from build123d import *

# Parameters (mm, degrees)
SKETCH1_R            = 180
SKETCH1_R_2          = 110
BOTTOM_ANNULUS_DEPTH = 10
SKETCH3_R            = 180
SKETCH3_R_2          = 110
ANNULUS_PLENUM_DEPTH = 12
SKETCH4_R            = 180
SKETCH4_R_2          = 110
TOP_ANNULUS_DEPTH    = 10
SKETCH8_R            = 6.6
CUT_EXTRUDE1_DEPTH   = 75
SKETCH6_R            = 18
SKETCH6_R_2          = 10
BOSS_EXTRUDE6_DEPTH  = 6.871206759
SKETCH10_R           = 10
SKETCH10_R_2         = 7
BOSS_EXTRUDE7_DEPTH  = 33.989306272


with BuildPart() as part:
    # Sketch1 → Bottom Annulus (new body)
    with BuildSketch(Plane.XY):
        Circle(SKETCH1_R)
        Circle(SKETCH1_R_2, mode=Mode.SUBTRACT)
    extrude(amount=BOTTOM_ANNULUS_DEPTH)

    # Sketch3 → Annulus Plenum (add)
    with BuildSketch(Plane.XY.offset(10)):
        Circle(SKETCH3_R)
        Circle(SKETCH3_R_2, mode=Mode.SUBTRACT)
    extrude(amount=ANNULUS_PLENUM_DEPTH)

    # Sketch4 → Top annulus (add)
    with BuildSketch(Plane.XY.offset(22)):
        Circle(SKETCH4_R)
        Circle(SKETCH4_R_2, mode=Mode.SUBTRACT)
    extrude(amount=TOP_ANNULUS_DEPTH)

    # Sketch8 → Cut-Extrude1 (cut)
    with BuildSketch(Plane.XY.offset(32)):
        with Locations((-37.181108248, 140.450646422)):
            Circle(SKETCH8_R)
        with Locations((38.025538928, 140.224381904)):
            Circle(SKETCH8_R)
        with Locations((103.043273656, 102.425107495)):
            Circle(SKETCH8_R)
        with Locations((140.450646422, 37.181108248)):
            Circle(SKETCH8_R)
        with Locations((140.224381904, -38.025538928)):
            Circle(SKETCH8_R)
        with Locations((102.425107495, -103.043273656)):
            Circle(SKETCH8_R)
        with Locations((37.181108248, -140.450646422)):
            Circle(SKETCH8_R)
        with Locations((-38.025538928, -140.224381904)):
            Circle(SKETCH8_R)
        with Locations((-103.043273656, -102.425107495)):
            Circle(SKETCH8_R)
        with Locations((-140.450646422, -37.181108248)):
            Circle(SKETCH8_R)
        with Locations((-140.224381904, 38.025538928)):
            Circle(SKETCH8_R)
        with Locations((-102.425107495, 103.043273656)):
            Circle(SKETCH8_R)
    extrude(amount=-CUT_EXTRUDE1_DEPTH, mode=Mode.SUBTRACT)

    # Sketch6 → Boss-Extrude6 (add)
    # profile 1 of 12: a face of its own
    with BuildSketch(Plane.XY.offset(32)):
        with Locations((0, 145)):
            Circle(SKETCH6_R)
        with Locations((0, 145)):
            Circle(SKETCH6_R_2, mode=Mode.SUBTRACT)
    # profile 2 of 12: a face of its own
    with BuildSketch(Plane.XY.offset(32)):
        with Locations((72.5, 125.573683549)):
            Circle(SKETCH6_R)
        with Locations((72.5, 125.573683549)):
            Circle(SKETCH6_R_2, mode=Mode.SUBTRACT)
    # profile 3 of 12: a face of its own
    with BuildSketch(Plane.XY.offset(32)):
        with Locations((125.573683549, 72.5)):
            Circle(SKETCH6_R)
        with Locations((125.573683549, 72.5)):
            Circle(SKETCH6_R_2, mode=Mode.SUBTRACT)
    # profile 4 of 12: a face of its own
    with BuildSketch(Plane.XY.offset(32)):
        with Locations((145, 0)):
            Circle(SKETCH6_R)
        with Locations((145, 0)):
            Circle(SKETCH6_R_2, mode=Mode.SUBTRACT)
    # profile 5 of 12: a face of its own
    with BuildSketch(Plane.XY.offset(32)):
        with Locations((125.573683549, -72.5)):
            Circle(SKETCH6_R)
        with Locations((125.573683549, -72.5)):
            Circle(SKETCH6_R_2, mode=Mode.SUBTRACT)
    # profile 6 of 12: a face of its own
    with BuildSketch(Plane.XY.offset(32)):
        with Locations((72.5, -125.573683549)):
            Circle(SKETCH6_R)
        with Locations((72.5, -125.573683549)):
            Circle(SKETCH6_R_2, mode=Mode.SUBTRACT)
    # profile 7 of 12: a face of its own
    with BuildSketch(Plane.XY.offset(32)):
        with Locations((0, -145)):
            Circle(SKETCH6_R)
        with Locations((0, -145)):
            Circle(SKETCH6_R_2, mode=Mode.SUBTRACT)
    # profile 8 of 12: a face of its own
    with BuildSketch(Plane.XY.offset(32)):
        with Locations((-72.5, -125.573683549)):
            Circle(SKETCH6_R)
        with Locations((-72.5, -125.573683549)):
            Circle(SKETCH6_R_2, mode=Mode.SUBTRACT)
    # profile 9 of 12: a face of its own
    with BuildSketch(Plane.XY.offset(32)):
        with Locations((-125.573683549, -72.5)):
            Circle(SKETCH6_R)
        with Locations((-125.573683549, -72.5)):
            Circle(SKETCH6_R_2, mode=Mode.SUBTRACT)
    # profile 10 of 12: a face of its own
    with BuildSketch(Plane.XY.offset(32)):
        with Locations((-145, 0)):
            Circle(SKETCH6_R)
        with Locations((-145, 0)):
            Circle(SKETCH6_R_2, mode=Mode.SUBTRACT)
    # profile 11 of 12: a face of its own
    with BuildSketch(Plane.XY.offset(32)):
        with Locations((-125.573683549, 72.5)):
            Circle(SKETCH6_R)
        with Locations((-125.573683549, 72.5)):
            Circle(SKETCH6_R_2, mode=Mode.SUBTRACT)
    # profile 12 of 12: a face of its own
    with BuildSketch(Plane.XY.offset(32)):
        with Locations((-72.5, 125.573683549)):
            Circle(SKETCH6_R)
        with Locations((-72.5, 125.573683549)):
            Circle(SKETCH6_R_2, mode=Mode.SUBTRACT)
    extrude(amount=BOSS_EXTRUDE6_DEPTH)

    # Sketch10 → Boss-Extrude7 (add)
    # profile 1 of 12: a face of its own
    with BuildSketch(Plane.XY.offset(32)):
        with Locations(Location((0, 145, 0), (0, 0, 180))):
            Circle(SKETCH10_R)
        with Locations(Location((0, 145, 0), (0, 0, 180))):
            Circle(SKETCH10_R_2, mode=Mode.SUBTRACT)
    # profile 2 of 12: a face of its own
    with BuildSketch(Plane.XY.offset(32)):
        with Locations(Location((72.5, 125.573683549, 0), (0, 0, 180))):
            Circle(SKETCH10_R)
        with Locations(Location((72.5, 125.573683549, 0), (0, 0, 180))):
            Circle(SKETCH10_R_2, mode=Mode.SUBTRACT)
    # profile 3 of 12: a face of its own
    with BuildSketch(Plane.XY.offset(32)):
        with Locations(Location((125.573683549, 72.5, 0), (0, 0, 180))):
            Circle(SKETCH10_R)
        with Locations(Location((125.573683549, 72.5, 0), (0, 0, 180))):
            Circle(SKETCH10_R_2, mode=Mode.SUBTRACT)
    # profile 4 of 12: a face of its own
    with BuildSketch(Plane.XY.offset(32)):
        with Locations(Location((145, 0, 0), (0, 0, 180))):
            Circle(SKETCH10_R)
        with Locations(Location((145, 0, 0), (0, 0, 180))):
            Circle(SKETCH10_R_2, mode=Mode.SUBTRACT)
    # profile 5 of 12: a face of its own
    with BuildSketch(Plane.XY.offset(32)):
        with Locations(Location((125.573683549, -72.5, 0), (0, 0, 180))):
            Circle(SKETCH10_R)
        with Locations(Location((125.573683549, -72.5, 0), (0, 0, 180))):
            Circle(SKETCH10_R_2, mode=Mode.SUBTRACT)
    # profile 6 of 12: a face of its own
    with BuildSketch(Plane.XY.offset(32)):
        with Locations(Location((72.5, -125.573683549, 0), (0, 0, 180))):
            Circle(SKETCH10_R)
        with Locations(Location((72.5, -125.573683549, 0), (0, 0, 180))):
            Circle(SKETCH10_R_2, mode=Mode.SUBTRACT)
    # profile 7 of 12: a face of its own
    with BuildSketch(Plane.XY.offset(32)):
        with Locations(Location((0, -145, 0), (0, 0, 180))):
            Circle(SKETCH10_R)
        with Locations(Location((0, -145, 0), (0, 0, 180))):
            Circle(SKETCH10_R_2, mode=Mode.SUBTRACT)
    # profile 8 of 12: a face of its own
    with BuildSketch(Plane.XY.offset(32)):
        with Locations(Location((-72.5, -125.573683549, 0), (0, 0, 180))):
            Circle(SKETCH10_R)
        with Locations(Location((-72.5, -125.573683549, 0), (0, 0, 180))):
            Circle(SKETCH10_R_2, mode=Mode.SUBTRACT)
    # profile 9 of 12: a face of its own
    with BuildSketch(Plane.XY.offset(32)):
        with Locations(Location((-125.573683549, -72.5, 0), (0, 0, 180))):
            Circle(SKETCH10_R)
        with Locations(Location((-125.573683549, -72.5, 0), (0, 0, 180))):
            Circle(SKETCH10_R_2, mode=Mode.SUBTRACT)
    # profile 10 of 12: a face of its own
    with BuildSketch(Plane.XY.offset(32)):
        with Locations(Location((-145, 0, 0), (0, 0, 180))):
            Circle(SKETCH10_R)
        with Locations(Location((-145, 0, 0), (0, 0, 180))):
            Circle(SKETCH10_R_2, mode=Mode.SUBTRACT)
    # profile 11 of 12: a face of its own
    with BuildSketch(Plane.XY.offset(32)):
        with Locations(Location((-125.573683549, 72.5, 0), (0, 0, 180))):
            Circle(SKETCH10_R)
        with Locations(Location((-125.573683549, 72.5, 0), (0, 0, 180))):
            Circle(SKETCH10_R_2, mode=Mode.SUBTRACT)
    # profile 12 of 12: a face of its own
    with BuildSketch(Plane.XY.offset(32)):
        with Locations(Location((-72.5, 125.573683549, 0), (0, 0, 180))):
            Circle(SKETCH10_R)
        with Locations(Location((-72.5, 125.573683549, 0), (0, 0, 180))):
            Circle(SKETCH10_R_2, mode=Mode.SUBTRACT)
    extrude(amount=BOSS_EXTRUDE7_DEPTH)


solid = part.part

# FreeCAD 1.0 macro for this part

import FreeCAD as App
import Part
import Sketcher

V = App.Vector

doc = App.newDocument("Part")
body = doc.addObject("PartDesign::Body", "Body")

sketch1 = body.newObject("Sketcher::SketchObject", "Sketch")
sketch1.AttachmentSupport = (doc.getObject("XY_Plane"), [""])
sketch1.MapMode = "FlatFace"
sketch1.addGeometry(Part.Circle(V(0, 0, 0), V(0, 0, 1), 180), False)
sketch1.addGeometry(Part.Circle(V(0, 0, 0), V(0, 0, 1), 110), False)
sketch1.addConstraint(Sketcher.Constraint("Coincident", 0, 3, -1, 1))
sketch1.addConstraint(Sketcher.Constraint("Coincident", 1, 3, -1, 1))
sketch1.addConstraint(Sketcher.Constraint("Diameter", 0, 360.0))
sketch1.addConstraint(Sketcher.Constraint("Diameter", 1, 220.0))
pad1 = body.newObject("PartDesign::Pad", "Pad")
pad1.Profile = sketch1
pad1.Length = 10

sketch2 = body.newObject("Sketcher::SketchObject", "Sketch001")
sketch2.AttachmentSupport = (doc.getObject("XY_Plane"), [""])
sketch2.MapMode = "FlatFace"
sketch2.AttachmentOffset = App.Placement(V(0, 0, 10), App.Rotation())
sketch2.addGeometry(Part.Circle(V(0, 0, 0), V(0, 0, 1), 180), False)
sketch2.addGeometry(Part.Circle(V(0, 0, 0), V(0, 0, 1), 110), False)
sketch2.addConstraint(Sketcher.Constraint("Coincident", 0, 3, -1, 1))
sketch2.addConstraint(Sketcher.Constraint("Coincident", 1, 3, -1, 1))
sketch2.addConstraint(Sketcher.Constraint("Diameter", 0, 360.0))
sketch2.addConstraint(Sketcher.Constraint("Diameter", 1, 220.0))
pad2 = body.newObject("PartDesign::Pad", "Pad001")
pad2.Profile = sketch2
pad2.Length = 12

sketch3 = body.newObject("Sketcher::SketchObject", "Sketch002")
sketch3.AttachmentSupport = (doc.getObject("XY_Plane"), [""])
sketch3.MapMode = "FlatFace"
sketch3.AttachmentOffset = App.Placement(V(0, 0, 22), App.Rotation())
sketch3.addGeometry(Part.Circle(V(0, 0, 0), V(0, 0, 1), 180), False)
sketch3.addGeometry(Part.Circle(V(0, 0, 0), V(0, 0, 1), 110), False)
sketch3.addConstraint(Sketcher.Constraint("Coincident", 0, 3, -1, 1))
sketch3.addConstraint(Sketcher.Constraint("Coincident", 1, 3, -1, 1))
sketch3.addConstraint(Sketcher.Constraint("Diameter", 0, 360.0))
sketch3.addConstraint(Sketcher.Constraint("Diameter", 1, 220.0))
pad3 = body.newObject("PartDesign::Pad", "Pad002")
pad3.Profile = sketch3
pad3.Length = 10

sketch4 = body.newObject("Sketcher::SketchObject", "Sketch003")
sketch4.AttachmentSupport = (doc.getObject("XY_Plane"), [""])
sketch4.MapMode = "FlatFace"
sketch4.AttachmentOffset = App.Placement(V(0, 0, 32), App.Rotation())
sketch4.addGeometry(Part.Circle(V(-37, 140, 0), V(0, 0, 1), 7), False)
sketch4.addGeometry(Part.Circle(V(38, 140, 0), V(0, 0, 1), 7), False)
sketch4.addGeometry(Part.Circle(V(103, 102, 0), V(0, 0, 1), 7), False)
sketch4.addGeometry(Part.Circle(V(140, 37, 0), V(0, 0, 1), 7), False)
sketch4.addGeometry(Part.Circle(V(140, -38, 0), V(0, 0, 1), 7), False)
sketch4.addGeometry(Part.Circle(V(102, -103, 0), V(0, 0, 1), 7), False)
sketch4.addGeometry(Part.Circle(V(37, -140, 0), V(0, 0, 1), 7), False)
sketch4.addGeometry(Part.Circle(V(-38, -140, 0), V(0, 0, 1), 7), False)
sketch4.addGeometry(Part.Circle(V(-103, -102, 0), V(0, 0, 1), 7), False)
sketch4.addGeometry(Part.Circle(V(-140, -37, 0), V(0, 0, 1), 7), False)
sketch4.addGeometry(Part.Circle(V(-140, 38, 0), V(0, 0, 1), 7), False)
sketch4.addGeometry(Part.Circle(V(-102, 103, 0), V(0, 0, 1), 7), False)
sketch4.addConstraint(Sketcher.Constraint("Equal", 0, 1))
sketch4.addConstraint(Sketcher.Constraint("Equal", 1, 2))
sketch4.addConstraint(Sketcher.Constraint("Equal", 2, 3))
sketch4.addConstraint(Sketcher.Constraint("Equal", 3, 4))
sketch4.addConstraint(Sketcher.Constraint("Equal", 4, 5))
sketch4.addConstraint(Sketcher.Constraint("Equal", 5, 6))
sketch4.addConstraint(Sketcher.Constraint("Equal", 6, 7))
sketch4.addConstraint(Sketcher.Constraint("Equal", 7, 8))
sketch4.addConstraint(Sketcher.Constraint("Equal", 8, 9))
sketch4.addConstraint(Sketcher.Constraint("Equal", 9, 10))
sketch4.addConstraint(Sketcher.Constraint("Equal", 10, 11))
sketch4.addConstraint(Sketcher.Constraint("Symmetric", 0, 3, 6, 3, -1, 1))
sketch4.addConstraint(Sketcher.Constraint("Symmetric", 1, 3, 7, 3, -1, 1))
sketch4.addConstraint(Sketcher.Constraint("Symmetric", 2, 3, 8, 3, -1, 1))
sketch4.addConstraint(Sketcher.Constraint("Symmetric", 3, 3, 9, 3, -1, 1))
sketch4.addConstraint(Sketcher.Constraint("Symmetric", 4, 3, 10, 3, -1, 1))
sketch4.addConstraint(Sketcher.Constraint("Symmetric", 5, 3, 11, 3, -1, 1))
sketch4.addConstraint(Sketcher.Constraint("Diameter", 0, 13.2))
sketch4.addConstraint(Sketcher.Constraint("DistanceY", 3, 3, 2, 3, 65.243999))
sketch4.addConstraint(Sketcher.Constraint("DistanceX", 6, 3, 5, 3, 65.243999))
sketch4.addConstraint(Sketcher.Constraint("DistanceX", 0, 3, -1, 1, 37.181108))
sketch4.addConstraint(Sketcher.Constraint("DistanceX", -1, 1, 1, 3, 38.025539))
sketch4.addConstraint(Sketcher.Constraint("DistanceY", -1, 1, 1, 3, 140.224382))
sketch4.addConstraint(Sketcher.Constraint("DistanceY", -1, 1, 3, 3, 37.181108))
sketch4.addConstraint(Sketcher.Constraint("DistanceX", -1, 1, 4, 3, 140.224382))
sketch4.addConstraint(Sketcher.Constraint("DistanceY", 4, 3, -1, 1, 38.025539))
sketch4.addConstraint(Sketcher.Constraint("DistanceX", 0, 3, 2, 3, 140.224382))
sketch4.addConstraint(Sketcher.Constraint("DistanceY", 2, 3, 0, 3, 38.025539))
sketch4.addConstraint(Sketcher.Constraint("DistanceX", 5, 3, 3, 3, 38.025539))
sketch4.addConstraint(Sketcher.Constraint("DistanceY", 5, 3, 3, 3, 140.224382))
pocket1 = body.newObject("PartDesign::Pocket", "Pocket")
pocket1.Profile = sketch4
pocket1.Length = 75

sketch5 = body.newObject("Sketcher::SketchObject", "Sketch004")
sketch5.AttachmentSupport = (doc.getObject("XY_Plane"), [""])
sketch5.MapMode = "FlatFace"
sketch5.AttachmentOffset = App.Placement(V(0, 0, 32), App.Rotation())
sketch5.addGeometry(Part.Circle(V(0, 145, 0), V(0, 0, 1), 18), False)
sketch5.addGeometry(Part.Circle(V(0, 145, 0), V(0, 0, 1), 10), False)
sketch5.addGeometry(Part.Circle(V(72, 126, 0), V(0, 0, 1), 18), False)
sketch5.addGeometry(Part.Circle(V(72, 126, 0), V(0, 0, 1), 10), False)
sketch5.addGeometry(Part.Circle(V(126, 72, 0), V(0, 0, 1), 18), False)
sketch5.addGeometry(Part.Circle(V(126, 72, 0), V(0, 0, 1), 10), False)
sketch5.addGeometry(Part.Circle(V(145, 0, 0), V(0, 0, 1), 18), False)
sketch5.addGeometry(Part.Circle(V(145, 0, 0), V(0, 0, 1), 10), False)
sketch5.addGeometry(Part.Circle(V(126, -72, 0), V(0, 0, 1), 18), False)
sketch5.addGeometry(Part.Circle(V(126, -72, 0), V(0, 0, 1), 10), False)
sketch5.addGeometry(Part.Circle(V(72, -126, 0), V(0, 0, 1), 18), False)
sketch5.addGeometry(Part.Circle(V(72, -126, 0), V(0, 0, 1), 10), False)
sketch5.addGeometry(Part.Circle(V(0, -145, 0), V(0, 0, 1), 18), False)
sketch5.addGeometry(Part.Circle(V(0, -145, 0), V(0, 0, 1), 10), False)
sketch5.addGeometry(Part.Circle(V(-72, -126, 0), V(0, 0, 1), 18), False)
sketch5.addGeometry(Part.Circle(V(-72, -126, 0), V(0, 0, 1), 10), False)
sketch5.addGeometry(Part.Circle(V(-126, -72, 0), V(0, 0, 1), 18), False)
sketch5.addGeometry(Part.Circle(V(-126, -72, 0), V(0, 0, 1), 10), False)
sketch5.addGeometry(Part.Circle(V(-145, 0, 0), V(0, 0, 1), 18), False)
sketch5.addGeometry(Part.Circle(V(-145, 0, 0), V(0, 0, 1), 10), False)
sketch5.addGeometry(Part.Circle(V(-126, 72, 0), V(0, 0, 1), 18), False)
sketch5.addGeometry(Part.Circle(V(-126, 72, 0), V(0, 0, 1), 10), False)
sketch5.addGeometry(Part.Circle(V(-72, 126, 0), V(0, 0, 1), 18), False)
sketch5.addGeometry(Part.Circle(V(-72, 126, 0), V(0, 0, 1), 10), False)
sketch5.addConstraint(Sketcher.Constraint("Coincident", 1, 3, 0, 3))
sketch5.addConstraint(Sketcher.Constraint("Coincident", 3, 3, 2, 3))
sketch5.addConstraint(Sketcher.Constraint("Coincident", 5, 3, 4, 3))
sketch5.addConstraint(Sketcher.Constraint("Coincident", 7, 3, 6, 3))
sketch5.addConstraint(Sketcher.Constraint("Coincident", 9, 3, 8, 3))
sketch5.addConstraint(Sketcher.Constraint("Coincident", 11, 3, 10, 3))
sketch5.addConstraint(Sketcher.Constraint("Coincident", 13, 3, 12, 3))
sketch5.addConstraint(Sketcher.Constraint("Coincident", 15, 3, 14, 3))
sketch5.addConstraint(Sketcher.Constraint("Coincident", 17, 3, 16, 3))
sketch5.addConstraint(Sketcher.Constraint("Coincident", 19, 3, 18, 3))
sketch5.addConstraint(Sketcher.Constraint("Coincident", 21, 3, 20, 3))
sketch5.addConstraint(Sketcher.Constraint("Coincident", 23, 3, 22, 3))
sketch5.addConstraint(Sketcher.Constraint("Equal", 0, 2))
sketch5.addConstraint(Sketcher.Constraint("Equal", 1, 3))
sketch5.addConstraint(Sketcher.Constraint("Equal", 2, 4))
sketch5.addConstraint(Sketcher.Constraint("Equal", 3, 5))
sketch5.addConstraint(Sketcher.Constraint("Equal", 4, 6))
sketch5.addConstraint(Sketcher.Constraint("Equal", 5, 7))
sketch5.addConstraint(Sketcher.Constraint("Equal", 6, 8))
sketch5.addConstraint(Sketcher.Constraint("Equal", 7, 9))
sketch5.addConstraint(Sketcher.Constraint("Equal", 8, 10))
sketch5.addConstraint(Sketcher.Constraint("Equal", 9, 11))
sketch5.addConstraint(Sketcher.Constraint("Equal", 10, 12))
sketch5.addConstraint(Sketcher.Constraint("Equal", 11, 13))
sketch5.addConstraint(Sketcher.Constraint("Equal", 12, 14))
sketch5.addConstraint(Sketcher.Constraint("Equal", 13, 15))
sketch5.addConstraint(Sketcher.Constraint("Equal", 14, 16))
sketch5.addConstraint(Sketcher.Constraint("Equal", 15, 17))
sketch5.addConstraint(Sketcher.Constraint("Equal", 16, 18))
sketch5.addConstraint(Sketcher.Constraint("Equal", 17, 19))
sketch5.addConstraint(Sketcher.Constraint("Equal", 18, 20))
sketch5.addConstraint(Sketcher.Constraint("Equal", 19, 21))
sketch5.addConstraint(Sketcher.Constraint("Equal", 20, 22))
sketch5.addConstraint(Sketcher.Constraint("Equal", 21, 23))
sketch5.addConstraint(Sketcher.Constraint("Symmetric", 0, 3, 12, 3, -1, 1))
sketch5.addConstraint(Sketcher.Constraint("Symmetric", 2, 3, 14, 3, -1, 1))
sketch5.addConstraint(Sketcher.Constraint("Symmetric", 4, 3, 16, 3, -1, 1))
sketch5.addConstraint(Sketcher.Constraint("Symmetric", 6, 3, 18, 3, -1, 1))
sketch5.addConstraint(Sketcher.Constraint("Symmetric", 8, 3, 20, 3, -1, 1))
sketch5.addConstraint(Sketcher.Constraint("Symmetric", 10, 3, 22, 3, -1, 1))
sketch5.addConstraint(Sketcher.Constraint("Symmetric", 10, 3, 14, 3, -2))
sketch5.addConstraint(Sketcher.Constraint("Symmetric", 8, 3, 16, 3, -2))
sketch5.addConstraint(Sketcher.Constraint("PointOnObject", 0, 3, -2))
sketch5.addConstraint(Sketcher.Constraint("PointOnObject", 6, 3, -1))
sketch5.addConstraint(Sketcher.Constraint("Diameter", 0, 36.0))
sketch5.addConstraint(Sketcher.Constraint("Diameter", 1, 20.0))
sketch5.addConstraint(Sketcher.Constraint("DistanceY", -1, 1, 0, 3, 145.0))
sketch5.addConstraint(Sketcher.Constraint("DistanceX", -1, 1, 6, 3, 145.0))
sketch5.addConstraint(Sketcher.Constraint("DistanceY", 8, 3, 4, 3, 145.0))
sketch5.addConstraint(Sketcher.Constraint("DistanceX", 14, 3, 10, 3, 145.0))
sketch5.addConstraint(Sketcher.Constraint("DistanceY", -1, 1, 2, 3, 125.573684))
sketch5.addConstraint(Sketcher.Constraint("DistanceX", -1, 1, 4, 3, 125.573684))
pad4 = body.newObject("PartDesign::Pad", "Pad003")
pad4.Profile = sketch5
pad4.Length = 6.871207

sketch6 = body.newObject("Sketcher::SketchObject", "Sketch005")
sketch6.AttachmentSupport = (doc.getObject("XY_Plane"), [""])
sketch6.MapMode = "FlatFace"
sketch6.AttachmentOffset = App.Placement(V(0, 0, 32), App.Rotation())
sketch6.addGeometry(Part.Circle(V(0, 145, 0), V(0, 0, 1), 10), False)
sketch6.addGeometry(Part.Circle(V(0, 145, 0), V(0, 0, 1), 7), False)
sketch6.addGeometry(Part.Circle(V(72, 126, 0), V(0, 0, 1), 10), False)
sketch6.addGeometry(Part.Circle(V(72, 126, 0), V(0, 0, 1), 7), False)
sketch6.addGeometry(Part.Circle(V(126, 72, 0), V(0, 0, 1), 10), False)
sketch6.addGeometry(Part.Circle(V(126, 72, 0), V(0, 0, 1), 7), False)
sketch6.addGeometry(Part.Circle(V(145, 0, 0), V(0, 0, 1), 10), False)
sketch6.addGeometry(Part.Circle(V(145, 0, 0), V(0, 0, 1), 7), False)
sketch6.addGeometry(Part.Circle(V(126, -72, 0), V(0, 0, 1), 10), False)
sketch6.addGeometry(Part.Circle(V(126, -72, 0), V(0, 0, 1), 7), False)
sketch6.addGeometry(Part.Circle(V(72, -126, 0), V(0, 0, 1), 10), False)
sketch6.addGeometry(Part.Circle(V(72, -126, 0), V(0, 0, 1), 7), False)
sketch6.addGeometry(Part.Circle(V(0, -145, 0), V(0, 0, 1), 10), False)
sketch6.addGeometry(Part.Circle(V(0, -145, 0), V(0, 0, 1), 7), False)
sketch6.addGeometry(Part.Circle(V(-72, -126, 0), V(0, 0, 1), 10), False)
sketch6.addGeometry(Part.Circle(V(-72, -126, 0), V(0, 0, 1), 7), False)
sketch6.addGeometry(Part.Circle(V(-126, -72, 0), V(0, 0, 1), 10), False)
sketch6.addGeometry(Part.Circle(V(-126, -72, 0), V(0, 0, 1), 7), False)
sketch6.addGeometry(Part.Circle(V(-145, 0, 0), V(0, 0, 1), 10), False)
sketch6.addGeometry(Part.Circle(V(-145, 0, 0), V(0, 0, 1), 7), False)
sketch6.addGeometry(Part.Circle(V(-126, 72, 0), V(0, 0, 1), 10), False)
sketch6.addGeometry(Part.Circle(V(-126, 72, 0), V(0, 0, 1), 7), False)
sketch6.addGeometry(Part.Circle(V(-72, 126, 0), V(0, 0, 1), 10), False)
sketch6.addGeometry(Part.Circle(V(-72, 126, 0), V(0, 0, 1), 7), False)
sketch6.addConstraint(Sketcher.Constraint("Coincident", 1, 3, 0, 3))
sketch6.addConstraint(Sketcher.Constraint("Coincident", 3, 3, 2, 3))
sketch6.addConstraint(Sketcher.Constraint("Coincident", 5, 3, 4, 3))
sketch6.addConstraint(Sketcher.Constraint("Coincident", 7, 3, 6, 3))
sketch6.addConstraint(Sketcher.Constraint("Coincident", 9, 3, 8, 3))
sketch6.addConstraint(Sketcher.Constraint("Coincident", 11, 3, 10, 3))
sketch6.addConstraint(Sketcher.Constraint("Coincident", 13, 3, 12, 3))
sketch6.addConstraint(Sketcher.Constraint("Coincident", 15, 3, 14, 3))
sketch6.addConstraint(Sketcher.Constraint("Coincident", 17, 3, 16, 3))
sketch6.addConstraint(Sketcher.Constraint("Coincident", 19, 3, 18, 3))
sketch6.addConstraint(Sketcher.Constraint("Coincident", 21, 3, 20, 3))
sketch6.addConstraint(Sketcher.Constraint("Coincident", 23, 3, 22, 3))
sketch6.addConstraint(Sketcher.Constraint("Equal", 0, 2))
sketch6.addConstraint(Sketcher.Constraint("Equal", 1, 3))
sketch6.addConstraint(Sketcher.Constraint("Equal", 2, 4))
sketch6.addConstraint(Sketcher.Constraint("Equal", 3, 5))
sketch6.addConstraint(Sketcher.Constraint("Equal", 4, 6))
sketch6.addConstraint(Sketcher.Constraint("Equal", 5, 7))
sketch6.addConstraint(Sketcher.Constraint("Equal", 6, 8))
sketch6.addConstraint(Sketcher.Constraint("Equal", 7, 9))
sketch6.addConstraint(Sketcher.Constraint("Equal", 8, 10))
sketch6.addConstraint(Sketcher.Constraint("Equal", 9, 11))
sketch6.addConstraint(Sketcher.Constraint("Equal", 10, 12))
sketch6.addConstraint(Sketcher.Constraint("Equal", 11, 13))
sketch6.addConstraint(Sketcher.Constraint("Equal", 12, 14))
sketch6.addConstraint(Sketcher.Constraint("Equal", 13, 15))
sketch6.addConstraint(Sketcher.Constraint("Equal", 14, 16))
sketch6.addConstraint(Sketcher.Constraint("Equal", 15, 17))
sketch6.addConstraint(Sketcher.Constraint("Equal", 16, 18))
sketch6.addConstraint(Sketcher.Constraint("Equal", 17, 19))
sketch6.addConstraint(Sketcher.Constraint("Equal", 18, 20))
sketch6.addConstraint(Sketcher.Constraint("Equal", 19, 21))
sketch6.addConstraint(Sketcher.Constraint("Equal", 20, 22))
sketch6.addConstraint(Sketcher.Constraint("Equal", 21, 23))
sketch6.addConstraint(Sketcher.Constraint("Symmetric", 0, 3, 12, 3, -1, 1))
sketch6.addConstraint(Sketcher.Constraint("Symmetric", 2, 3, 14, 3, -1, 1))
sketch6.addConstraint(Sketcher.Constraint("Symmetric", 4, 3, 16, 3, -1, 1))
sketch6.addConstraint(Sketcher.Constraint("Symmetric", 6, 3, 18, 3, -1, 1))
sketch6.addConstraint(Sketcher.Constraint("Symmetric", 8, 3, 20, 3, -1, 1))
sketch6.addConstraint(Sketcher.Constraint("Symmetric", 10, 3, 22, 3, -1, 1))
sketch6.addConstraint(Sketcher.Constraint("Symmetric", 10, 3, 14, 3, -2))
sketch6.addConstraint(Sketcher.Constraint("Symmetric", 8, 3, 16, 3, -2))
sketch6.addConstraint(Sketcher.Constraint("PointOnObject", 0, 3, -2))
sketch6.addConstraint(Sketcher.Constraint("PointOnObject", 6, 3, -1))
sketch6.addConstraint(Sketcher.Constraint("Diameter", 0, 20.0))
sketch6.addConstraint(Sketcher.Constraint("Diameter", 1, 14.0))
sketch6.addConstraint(Sketcher.Constraint("DistanceY", -1, 1, 0, 3, 145.0))
sketch6.addConstraint(Sketcher.Constraint("DistanceX", -1, 1, 6, 3, 145.0))
sketch6.addConstraint(Sketcher.Constraint("DistanceY", 8, 3, 4, 3, 145.0))
sketch6.addConstraint(Sketcher.Constraint("DistanceX", 14, 3, 10, 3, 145.0))
sketch6.addConstraint(Sketcher.Constraint("DistanceY", -1, 1, 2, 3, 125.573684))
sketch6.addConstraint(Sketcher.Constraint("DistanceX", -1, 1, 4, 3, 125.573684))
pad5 = body.newObject("PartDesign::Pad", "Pad004")
pad5.Profile = sketch6
pad5.Length = 33.989306

doc.recompute()
